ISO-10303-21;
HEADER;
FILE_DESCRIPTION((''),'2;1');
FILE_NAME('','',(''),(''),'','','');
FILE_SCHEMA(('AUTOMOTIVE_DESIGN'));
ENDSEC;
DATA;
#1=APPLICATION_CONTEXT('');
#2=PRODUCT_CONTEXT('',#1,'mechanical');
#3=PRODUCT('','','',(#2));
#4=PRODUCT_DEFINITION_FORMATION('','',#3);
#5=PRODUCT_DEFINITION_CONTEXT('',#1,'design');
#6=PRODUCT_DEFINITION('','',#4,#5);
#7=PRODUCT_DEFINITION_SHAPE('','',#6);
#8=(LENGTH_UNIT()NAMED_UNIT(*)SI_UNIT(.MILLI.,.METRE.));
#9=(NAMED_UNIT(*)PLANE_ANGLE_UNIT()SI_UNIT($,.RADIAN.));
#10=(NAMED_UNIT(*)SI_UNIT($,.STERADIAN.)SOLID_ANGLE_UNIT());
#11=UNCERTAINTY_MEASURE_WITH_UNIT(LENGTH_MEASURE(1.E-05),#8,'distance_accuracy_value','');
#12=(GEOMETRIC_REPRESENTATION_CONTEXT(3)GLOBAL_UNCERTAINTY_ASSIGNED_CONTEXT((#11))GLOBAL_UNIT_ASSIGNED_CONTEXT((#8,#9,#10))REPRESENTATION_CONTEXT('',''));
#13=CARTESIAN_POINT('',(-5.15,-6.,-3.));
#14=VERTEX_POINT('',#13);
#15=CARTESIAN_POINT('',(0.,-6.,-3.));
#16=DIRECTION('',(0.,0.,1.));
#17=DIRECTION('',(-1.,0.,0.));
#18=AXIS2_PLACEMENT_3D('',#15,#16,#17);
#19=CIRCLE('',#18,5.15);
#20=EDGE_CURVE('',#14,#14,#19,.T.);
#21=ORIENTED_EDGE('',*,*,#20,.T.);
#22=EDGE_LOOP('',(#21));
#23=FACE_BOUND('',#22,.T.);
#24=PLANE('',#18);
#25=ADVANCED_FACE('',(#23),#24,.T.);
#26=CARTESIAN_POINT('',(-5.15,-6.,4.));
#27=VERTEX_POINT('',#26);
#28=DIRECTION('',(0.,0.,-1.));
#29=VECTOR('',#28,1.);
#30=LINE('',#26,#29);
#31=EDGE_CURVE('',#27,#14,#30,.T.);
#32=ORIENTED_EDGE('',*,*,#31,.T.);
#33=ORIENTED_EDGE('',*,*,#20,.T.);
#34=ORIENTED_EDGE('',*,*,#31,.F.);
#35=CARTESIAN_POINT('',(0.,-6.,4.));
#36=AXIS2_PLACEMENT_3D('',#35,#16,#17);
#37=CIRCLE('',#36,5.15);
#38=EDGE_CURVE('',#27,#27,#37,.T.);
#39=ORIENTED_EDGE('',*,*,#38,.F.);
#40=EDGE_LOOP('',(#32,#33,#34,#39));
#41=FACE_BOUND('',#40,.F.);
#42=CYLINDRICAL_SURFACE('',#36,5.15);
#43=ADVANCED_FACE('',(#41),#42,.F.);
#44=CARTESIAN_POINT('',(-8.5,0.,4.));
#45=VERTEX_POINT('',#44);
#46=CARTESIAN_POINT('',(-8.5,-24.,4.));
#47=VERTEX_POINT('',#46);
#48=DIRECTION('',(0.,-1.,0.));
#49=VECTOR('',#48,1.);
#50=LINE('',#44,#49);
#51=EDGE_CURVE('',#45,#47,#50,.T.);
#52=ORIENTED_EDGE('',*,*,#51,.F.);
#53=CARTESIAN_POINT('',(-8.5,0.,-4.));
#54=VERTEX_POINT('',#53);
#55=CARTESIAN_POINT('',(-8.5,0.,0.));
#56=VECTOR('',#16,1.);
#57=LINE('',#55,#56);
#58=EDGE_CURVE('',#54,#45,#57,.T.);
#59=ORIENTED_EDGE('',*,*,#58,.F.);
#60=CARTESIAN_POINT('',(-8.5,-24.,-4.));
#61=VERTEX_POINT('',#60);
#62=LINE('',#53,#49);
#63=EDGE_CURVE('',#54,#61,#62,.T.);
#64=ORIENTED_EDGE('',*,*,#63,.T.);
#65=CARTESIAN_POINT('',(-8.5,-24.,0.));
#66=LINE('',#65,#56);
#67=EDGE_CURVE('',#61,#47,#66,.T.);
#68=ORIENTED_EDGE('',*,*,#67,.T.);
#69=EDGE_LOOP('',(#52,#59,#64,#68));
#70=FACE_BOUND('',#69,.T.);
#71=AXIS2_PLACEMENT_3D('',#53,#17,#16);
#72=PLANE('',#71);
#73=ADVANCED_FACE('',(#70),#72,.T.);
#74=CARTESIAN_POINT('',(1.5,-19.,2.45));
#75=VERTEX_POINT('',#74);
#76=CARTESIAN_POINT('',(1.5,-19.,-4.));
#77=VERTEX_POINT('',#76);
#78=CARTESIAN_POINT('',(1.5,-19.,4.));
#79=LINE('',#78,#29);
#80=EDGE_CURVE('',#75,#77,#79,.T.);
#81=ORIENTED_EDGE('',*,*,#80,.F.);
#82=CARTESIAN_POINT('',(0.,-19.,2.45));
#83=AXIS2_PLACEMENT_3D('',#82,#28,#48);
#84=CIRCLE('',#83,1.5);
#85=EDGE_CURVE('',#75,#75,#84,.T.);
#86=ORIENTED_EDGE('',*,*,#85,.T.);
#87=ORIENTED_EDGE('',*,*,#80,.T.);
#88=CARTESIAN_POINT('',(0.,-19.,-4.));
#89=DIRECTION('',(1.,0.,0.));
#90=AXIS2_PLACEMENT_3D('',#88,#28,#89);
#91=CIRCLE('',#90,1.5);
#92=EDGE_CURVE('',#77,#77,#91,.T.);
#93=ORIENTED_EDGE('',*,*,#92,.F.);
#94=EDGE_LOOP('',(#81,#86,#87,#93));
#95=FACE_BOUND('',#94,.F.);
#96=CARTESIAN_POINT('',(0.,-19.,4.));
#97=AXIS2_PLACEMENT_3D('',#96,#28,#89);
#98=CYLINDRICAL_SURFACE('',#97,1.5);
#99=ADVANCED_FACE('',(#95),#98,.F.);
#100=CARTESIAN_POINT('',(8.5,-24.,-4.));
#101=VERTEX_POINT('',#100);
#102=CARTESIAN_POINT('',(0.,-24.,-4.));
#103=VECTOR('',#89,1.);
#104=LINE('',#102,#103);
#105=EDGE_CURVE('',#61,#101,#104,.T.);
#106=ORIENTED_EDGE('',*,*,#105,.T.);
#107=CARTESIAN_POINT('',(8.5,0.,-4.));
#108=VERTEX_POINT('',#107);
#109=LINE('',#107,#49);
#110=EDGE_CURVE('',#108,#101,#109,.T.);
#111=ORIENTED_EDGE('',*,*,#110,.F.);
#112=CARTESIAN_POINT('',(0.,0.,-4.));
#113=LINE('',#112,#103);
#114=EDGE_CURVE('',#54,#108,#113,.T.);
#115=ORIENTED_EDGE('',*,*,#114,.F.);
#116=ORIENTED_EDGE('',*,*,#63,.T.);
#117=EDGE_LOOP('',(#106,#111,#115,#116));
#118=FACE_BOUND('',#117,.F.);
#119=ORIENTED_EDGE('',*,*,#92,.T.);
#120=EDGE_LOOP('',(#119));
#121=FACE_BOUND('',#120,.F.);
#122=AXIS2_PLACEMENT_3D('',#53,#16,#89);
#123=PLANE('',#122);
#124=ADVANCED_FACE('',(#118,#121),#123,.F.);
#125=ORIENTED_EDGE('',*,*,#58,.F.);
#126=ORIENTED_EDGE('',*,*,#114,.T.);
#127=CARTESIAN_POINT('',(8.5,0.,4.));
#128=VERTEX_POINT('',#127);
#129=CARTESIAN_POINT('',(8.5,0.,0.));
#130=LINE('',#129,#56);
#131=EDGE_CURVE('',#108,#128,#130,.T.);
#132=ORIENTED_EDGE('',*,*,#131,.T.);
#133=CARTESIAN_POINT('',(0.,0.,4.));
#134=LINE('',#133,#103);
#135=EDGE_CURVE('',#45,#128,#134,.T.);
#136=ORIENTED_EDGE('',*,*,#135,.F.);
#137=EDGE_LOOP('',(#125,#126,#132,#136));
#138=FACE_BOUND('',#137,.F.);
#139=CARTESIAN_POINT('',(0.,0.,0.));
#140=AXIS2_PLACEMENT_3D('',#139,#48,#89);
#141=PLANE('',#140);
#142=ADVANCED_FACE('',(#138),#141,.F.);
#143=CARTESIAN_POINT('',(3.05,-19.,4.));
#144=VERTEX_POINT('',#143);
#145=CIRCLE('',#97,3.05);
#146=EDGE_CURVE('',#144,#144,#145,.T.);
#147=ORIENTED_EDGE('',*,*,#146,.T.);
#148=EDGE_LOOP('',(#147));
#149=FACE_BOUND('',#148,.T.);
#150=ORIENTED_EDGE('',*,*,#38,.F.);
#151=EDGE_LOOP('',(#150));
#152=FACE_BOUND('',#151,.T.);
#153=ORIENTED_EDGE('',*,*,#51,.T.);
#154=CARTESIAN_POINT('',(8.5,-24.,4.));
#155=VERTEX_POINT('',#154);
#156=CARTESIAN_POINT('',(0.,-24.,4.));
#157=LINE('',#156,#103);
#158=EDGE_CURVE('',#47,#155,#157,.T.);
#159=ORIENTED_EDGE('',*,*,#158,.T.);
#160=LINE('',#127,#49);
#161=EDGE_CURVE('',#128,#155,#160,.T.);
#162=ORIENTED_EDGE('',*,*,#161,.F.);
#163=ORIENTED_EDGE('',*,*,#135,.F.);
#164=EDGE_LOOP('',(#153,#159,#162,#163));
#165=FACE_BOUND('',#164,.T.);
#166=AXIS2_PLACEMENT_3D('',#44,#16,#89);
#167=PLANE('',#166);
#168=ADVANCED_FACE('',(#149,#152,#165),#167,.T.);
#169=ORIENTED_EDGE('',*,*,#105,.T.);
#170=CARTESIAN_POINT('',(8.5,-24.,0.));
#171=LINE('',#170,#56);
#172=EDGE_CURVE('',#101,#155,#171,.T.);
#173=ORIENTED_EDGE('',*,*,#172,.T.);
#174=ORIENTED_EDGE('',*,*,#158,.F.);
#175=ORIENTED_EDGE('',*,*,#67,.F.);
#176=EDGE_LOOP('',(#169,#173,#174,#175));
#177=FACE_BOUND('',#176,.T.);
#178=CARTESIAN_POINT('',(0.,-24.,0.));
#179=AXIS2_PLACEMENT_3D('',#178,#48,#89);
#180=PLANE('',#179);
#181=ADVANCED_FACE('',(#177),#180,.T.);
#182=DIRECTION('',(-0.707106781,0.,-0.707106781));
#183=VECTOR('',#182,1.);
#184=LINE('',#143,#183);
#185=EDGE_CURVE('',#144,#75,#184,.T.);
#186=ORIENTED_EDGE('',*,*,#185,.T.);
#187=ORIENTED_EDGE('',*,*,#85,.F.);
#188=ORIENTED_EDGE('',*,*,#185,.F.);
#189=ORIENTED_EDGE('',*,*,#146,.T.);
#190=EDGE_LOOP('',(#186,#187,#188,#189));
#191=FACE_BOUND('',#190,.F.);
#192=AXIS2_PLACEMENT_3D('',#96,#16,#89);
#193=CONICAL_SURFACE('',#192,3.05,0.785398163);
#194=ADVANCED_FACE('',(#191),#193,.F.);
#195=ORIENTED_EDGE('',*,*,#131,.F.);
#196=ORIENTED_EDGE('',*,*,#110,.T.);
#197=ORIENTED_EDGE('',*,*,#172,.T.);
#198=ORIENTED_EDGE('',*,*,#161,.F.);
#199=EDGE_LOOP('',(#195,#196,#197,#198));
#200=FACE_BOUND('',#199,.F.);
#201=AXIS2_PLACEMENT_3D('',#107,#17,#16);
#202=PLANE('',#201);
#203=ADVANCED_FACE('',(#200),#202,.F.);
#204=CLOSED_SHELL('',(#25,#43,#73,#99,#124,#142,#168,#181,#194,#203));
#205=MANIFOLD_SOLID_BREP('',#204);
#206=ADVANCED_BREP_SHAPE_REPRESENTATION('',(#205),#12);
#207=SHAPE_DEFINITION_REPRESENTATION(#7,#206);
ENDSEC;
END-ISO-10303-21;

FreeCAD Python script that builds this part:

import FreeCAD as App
import Part
import Sketcher
from FreeCAD import Vector

doc = App.newDocument("Part")
body = doc.addObject("PartDesign::Body", "Body")

# Sketch on XZ plane
sketch1 = doc.addObject("Sketcher::SketchObject", "Sketch")
body.addObject(sketch1)
sketch1.AttachmentSupport = (doc.XZ_Plane, [""])
sketch1.MapMode = "FlatFace"
sketch1.addGeometry(Part.LineSegment(Vector(-8, 4, 0), Vector(-8, -4, 0)), False)
sketch1.addGeometry(Part.LineSegment(Vector(-8, -4, 0), Vector(8, -4, 0)), False)
sketch1.addGeometry(Part.LineSegment(Vector(8, -4, 0), Vector(8, 4, 0)), False)
sketch1.addGeometry(Part.LineSegment(Vector(8, 4, 0), Vector(-8, 4, 0)), False)
sketch1.addConstraint(Sketcher.Constraint("Coincident", 0, 2, 1, 1))
sketch1.addConstraint(Sketcher.Constraint("Coincident", 1, 2, 2, 1))
sketch1.addConstraint(Sketcher.Constraint("Coincident", 2, 2, 3, 1))
sketch1.addConstraint(Sketcher.Constraint("Coincident", 3, 2, 0, 1))
sketch1.addConstraint(Sketcher.Constraint("Vertical", 0))
sketch1.addConstraint(Sketcher.Constraint("Horizontal", 1))
sketch1.addConstraint(Sketcher.Constraint("Vertical", 2))
sketch1.addConstraint(Sketcher.Constraint("Horizontal", 3))
sketch1.addConstraint(Sketcher.Constraint("Symmetric", 0, 2, 2, 2, -1, 1))
sketch1.addConstraint(Sketcher.Constraint("DistanceX", 1, 1, 1, 2, 17.0))
sketch1.addConstraint(Sketcher.Constraint("DistanceY", 0, 2, 0, 1, 8.0))
pad1 = doc.addObject("PartDesign::Pad", "Pad")
body.addObject(pad1)
pad1.Profile = sketch1
pad1.Length = 24

# Sketch on XY plane
sketch2 = doc.addObject("Sketcher::SketchObject", "Sketch001")
body.addObject(sketch2)
sketch2.AttachmentSupport = (doc.XY_Plane, [""])
sketch2.MapMode = "FlatFace"
sketch2.AttachmentOffset = App.Placement(Vector(0, 0, 4), App.Rotation())
sketch2.addGeometry(Part.Circle(Vector(0, -6, 0), Vector(0, 0, 1), 5), False)
sketch2.addConstraint(Sketcher.Constraint("PointOnObject", 0, 3, -2))
sketch2.addConstraint(Sketcher.Constraint("Diameter", 0, 10.3))
sketch2.addConstraint(Sketcher.Constraint("DistanceY", 0, 3, -1, 1, 6.0))
pocket1 = doc.addObject("PartDesign::Pocket", "Pocket")
body.addObject(pocket1)
pocket1.Profile = sketch2
pocket1.Length = 7

# Sketch on XY plane
sketch3 = doc.addObject("Sketcher::SketchObject", "Sketch002")
body.addObject(sketch3)
sketch3.AttachmentSupport = (doc.XY_Plane, [""])
sketch3.MapMode = "FlatFace"
sketch3.AttachmentOffset = App.Placement(Vector(0, 0, 4), App.Rotation())
sketch3.addGeometry(Part.Circle(Vector(0, -19, 0), Vector(0, 0, 1), 1.5), False)
sketch3.addConstraint(Sketcher.Constraint("PointOnObject", 0, 3, -2))
sketch3.addConstraint(Sketcher.Constraint("Diameter", 0, 3.0))
sketch3.addConstraint(Sketcher.Constraint("DistanceY", 0, 3, -1, 1, 19.0))
doc.recompute()
hole = doc.addObject("PartDesign::Hole", "Hole")
body.addObject(hole)
hole.Profile = sketch3
hole.ThreadType = "None"
hole.Diameter = 3
hole.DepthType = "Dimension"
hole.Depth = 25
hole.DrillPoint = "Flat"
hole.HoleCutType = "Countersink"
hole.HoleCutDiameter = 6.1
hole.HoleCutCountersinkAngle = 90

doc.recompute()
